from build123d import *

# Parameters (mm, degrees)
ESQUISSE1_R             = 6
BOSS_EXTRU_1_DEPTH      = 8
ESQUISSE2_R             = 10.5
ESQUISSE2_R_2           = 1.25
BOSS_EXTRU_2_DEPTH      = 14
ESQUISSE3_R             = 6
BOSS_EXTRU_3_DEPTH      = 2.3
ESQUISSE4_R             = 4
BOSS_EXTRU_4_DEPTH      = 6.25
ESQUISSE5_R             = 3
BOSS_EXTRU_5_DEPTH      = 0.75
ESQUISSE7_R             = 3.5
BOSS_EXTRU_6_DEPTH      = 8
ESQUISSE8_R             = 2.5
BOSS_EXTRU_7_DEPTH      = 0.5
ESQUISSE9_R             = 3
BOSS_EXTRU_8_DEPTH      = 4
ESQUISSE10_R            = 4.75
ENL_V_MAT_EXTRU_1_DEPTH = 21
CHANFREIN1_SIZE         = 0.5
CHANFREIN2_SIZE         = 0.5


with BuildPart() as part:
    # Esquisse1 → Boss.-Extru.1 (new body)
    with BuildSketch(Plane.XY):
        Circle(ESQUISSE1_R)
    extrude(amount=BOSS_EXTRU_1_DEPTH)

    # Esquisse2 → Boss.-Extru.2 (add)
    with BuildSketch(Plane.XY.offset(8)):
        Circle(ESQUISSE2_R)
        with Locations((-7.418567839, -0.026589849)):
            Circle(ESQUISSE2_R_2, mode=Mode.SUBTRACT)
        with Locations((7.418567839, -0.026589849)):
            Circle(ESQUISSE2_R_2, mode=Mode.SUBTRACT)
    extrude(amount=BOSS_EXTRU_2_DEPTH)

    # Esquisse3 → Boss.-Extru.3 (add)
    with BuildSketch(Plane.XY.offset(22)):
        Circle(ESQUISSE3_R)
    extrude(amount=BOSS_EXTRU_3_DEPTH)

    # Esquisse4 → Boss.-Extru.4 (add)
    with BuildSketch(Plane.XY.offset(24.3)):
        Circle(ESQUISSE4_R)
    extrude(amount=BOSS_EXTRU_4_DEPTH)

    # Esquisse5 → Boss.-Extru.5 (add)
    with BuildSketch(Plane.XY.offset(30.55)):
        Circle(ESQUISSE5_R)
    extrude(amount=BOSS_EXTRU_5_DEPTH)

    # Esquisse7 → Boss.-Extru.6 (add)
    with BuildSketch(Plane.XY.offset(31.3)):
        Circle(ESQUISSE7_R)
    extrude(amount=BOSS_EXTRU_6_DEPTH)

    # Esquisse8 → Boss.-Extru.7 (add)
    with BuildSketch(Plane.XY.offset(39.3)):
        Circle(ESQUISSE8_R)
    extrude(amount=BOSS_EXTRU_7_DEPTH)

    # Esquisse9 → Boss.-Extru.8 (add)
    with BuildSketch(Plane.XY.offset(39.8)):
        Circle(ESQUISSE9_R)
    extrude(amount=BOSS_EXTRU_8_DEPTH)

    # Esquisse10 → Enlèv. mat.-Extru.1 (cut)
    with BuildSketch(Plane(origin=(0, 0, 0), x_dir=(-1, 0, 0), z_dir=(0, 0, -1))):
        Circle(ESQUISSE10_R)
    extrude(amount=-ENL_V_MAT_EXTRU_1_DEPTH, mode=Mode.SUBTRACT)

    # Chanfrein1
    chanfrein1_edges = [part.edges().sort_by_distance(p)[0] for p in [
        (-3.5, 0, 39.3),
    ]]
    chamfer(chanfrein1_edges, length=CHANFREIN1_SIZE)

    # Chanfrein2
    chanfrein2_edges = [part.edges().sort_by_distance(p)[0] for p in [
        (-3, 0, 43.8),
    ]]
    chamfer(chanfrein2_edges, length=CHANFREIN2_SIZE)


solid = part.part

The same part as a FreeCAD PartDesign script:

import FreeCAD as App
import Part
import Sketcher

V = App.Vector
Q = App.Units.Quantity


def edges_at(feature, points):
    """Names of the edges that pass closest to the given points."""
    edges = feature.Shape.Edges
    near = lambda p: min(range(len(edges)), key=lambda i: edges[i].distToShape(Part.Vertex(*p))[0])
    return sorted({f"Edge{near(p) + 1}" for p in points})

doc = App.newDocument("Part")
body = doc.addObject("PartDesign::Body", "Body")

# Sketch on XY plane
sketch1 = doc.addObject("Sketcher::SketchObject", "Sketch")
body.addObject(sketch1)
sketch1.AttachmentSupport = (doc.XY_Plane, [""])
sketch1.MapMode = "FlatFace"
sketch1.addGeometry(Part.Circle(V(0, 0, 0), V(0, 0, 1), 6), False)
sketch1.addConstraint(Sketcher.Constraint("Coincident", 0, 3, -1, 1))
sketch1.addConstraint(Sketcher.Constraint("Diameter", 0, Q("12 mm")))
pad1 = doc.addObject("PartDesign::Pad", "Pad")
body.addObject(pad1)
pad1.Profile = sketch1
pad1.Length = 8

# Sketch on XY plane
sketch2 = doc.addObject("Sketcher::SketchObject", "Sketch001")
body.addObject(sketch2)
sketch2.AttachmentSupport = (doc.XY_Plane, [""])
sketch2.MapMode = "FlatFace"
sketch2.AttachmentOffset = App.Placement(V(0, 0, 8), App.Rotation())
sketch2.addGeometry(Part.Circle(V(0, 0, 0), V(0, 0, 1), 10.5), False)
sketch2.addGeometry(Part.Circle(V(-7.418568, -0.02659, 0), V(0, 0, 1), 1.25), False)
sketch2.addGeometry(Part.Circle(V(7.418568, -0.02659, 0), V(0, 0, 1), 1.25), False)
sketch2.addConstraint(Sketcher.Constraint("Coincident", 0, 3, -1, 1))
sketch2.addConstraint(Sketcher.Constraint("Equal", 1, 2))
sketch2.addConstraint(Sketcher.Constraint("Symmetric", 1, 3, 2, 3, -2))
sketch2.addConstraint(Sketcher.Constraint("Diameter", 0, Q("21 mm")))
sketch2.addConstraint(Sketcher.Constraint("Diameter", 1, Q("2.5 mm")))
sketch2.addConstraint(Sketcher.Constraint("DistanceY", 1, 3, -1, 1, Q("0.02659 mm")))
sketch2.addConstraint(Sketcher.Constraint("DistanceX", 1, 3, -1, 1, Q("7.418568 mm")))
pad2 = doc.addObject("PartDesign::Pad", "Pad001")
body.addObject(pad2)
pad2.Profile = sketch2
pad2.Length = 14

# Sketch on XY plane
sketch3 = doc.addObject("Sketcher::SketchObject", "Sketch002")
body.addObject(sketch3)
sketch3.AttachmentSupport = (doc.XY_Plane, [""])
sketch3.MapMode = "FlatFace"
sketch3.AttachmentOffset = App.Placement(V(0, 0, 22), App.Rotation())
sketch3.addGeometry(Part.Circle(V(0, 0, 0), V(0, 0, 1), 6), False)
sketch3.addConstraint(Sketcher.Constraint("Coincident", 0, 3, -1, 1))
sketch3.addConstraint(Sketcher.Constraint("Diameter", 0, Q("12 mm")))
pad3 = doc.addObject("PartDesign::Pad", "Pad002")
body.addObject(pad3)
pad3.Profile = sketch3
pad3.Length = 2.3

# Sketch on XY plane
sketch4 = doc.addObject("Sketcher::SketchObject", "Sketch003")
body.addObject(sketch4)
sketch4.AttachmentSupport = (doc.XY_Plane, [""])
sketch4.MapMode = "FlatFace"
sketch4.AttachmentOffset = App.Placement(V(0, 0, 24.3), App.Rotation())
sketch4.addGeometry(Part.Circle(V(0, 0, 0), V(0, 0, 1), 4), False)
sketch4.addConstraint(Sketcher.Constraint("Coincident", 0, 3, -1, 1))
sketch4.addConstraint(Sketcher.Constraint("Diameter", 0, Q("8 mm")))
pad4 = doc.addObject("PartDesign::Pad", "Pad003")
body.addObject(pad4)
pad4.Profile = sketch4
pad4.Length = 6.25

# Sketch on XY plane
sketch5 = doc.addObject("Sketcher::SketchObject", "Sketch004")
body.addObject(sketch5)
sketch5.AttachmentSupport = (doc.XY_Plane, [""])
sketch5.MapMode = "FlatFace"
sketch5.AttachmentOffset = App.Placement(V(0, 0, 30.55), App.Rotation())
sketch5.addGeometry(Part.Circle(V(0, 0, 0), V(0, 0, 1), 3), False)
sketch5.addConstraint(Sketcher.Constraint("Coincident", 0, 3, -1, 1))
sketch5.addConstraint(Sketcher.Constraint("Diameter", 0, Q("6 mm")))
pad5 = doc.addObject("PartDesign::Pad", "Pad004")
body.addObject(pad5)
pad5.Profile = sketch5
pad5.Length = 0.75

# Sketch on XY plane
sketch6 = doc.addObject("Sketcher::SketchObject", "Sketch005")
body.addObject(sketch6)
sketch6.AttachmentSupport = (doc.XY_Plane, [""])
sketch6.MapMode = "FlatFace"
sketch6.AttachmentOffset = App.Placement(V(0, 0, 31.3), App.Rotation())
sketch6.addGeometry(Part.Circle(V(0, 0, 0), V(0, 0, 1), 3.5), False)
sketch6.addConstraint(Sketcher.Constraint("Coincident", 0, 3, -1, 1))
sketch6.addConstraint(Sketcher.Constraint("Diameter", 0, Q("7 mm")))
pad6 = doc.addObject("PartDesign::Pad", "Pad005")
body.addObject(pad6)
pad6.Profile = sketch6
pad6.Length = 8

# Sketch on XY plane
sketch7 = doc.addObject("Sketcher::SketchObject", "Sketch006")
body.addObject(sketch7)
sketch7.AttachmentSupport = (doc.XY_Plane, [""])
sketch7.MapMode = "FlatFace"
sketch7.AttachmentOffset = App.Placement(V(0, 0, 39.3), App.Rotation())
sketch7.addGeometry(Part.Circle(V(0, 0, 0), V(0, 0, 1), 2.5), False)
sketch7.addConstraint(Sketcher.Constraint("Coincident", 0, 3, -1, 1))
sketch7.addConstraint(Sketcher.Constraint("Diameter", 0, Q("5 mm")))
pad7 = doc.addObject("PartDesign::Pad", "Pad006")
body.addObject(pad7)
pad7.Profile = sketch7
pad7.Length = 0.5

# Sketch on XY plane
sketch8 = doc.addObject("Sketcher::SketchObject", "Sketch007")
body.addObject(sketch8)
sketch8.AttachmentSupport = (doc.XY_Plane, [""])
sketch8.MapMode = "FlatFace"
sketch8.AttachmentOffset = App.Placement(V(0, 0, 39.8), App.Rotation())
sketch8.addGeometry(Part.Circle(V(0, 0, 0), V(0, 0, 1), 3), False)
sketch8.addConstraint(Sketcher.Constraint("Coincident", 0, 3, -1, 1))
sketch8.addConstraint(Sketcher.Constraint("Diameter", 0, Q("6 mm")))
pad8 = doc.addObject("PartDesign::Pad", "Pad007")
body.addObject(pad8)
pad8.Profile = sketch8
pad8.Length = 4

# Sketch on XY plane
sketch9 = doc.addObject("Sketcher::SketchObject", "Sketch008")
body.addObject(sketch9)
sketch9.AttachmentSupport = (doc.XY_Plane, [""])
sketch9.MapMode = "FlatFace"
sketch9.addGeometry(Part.Circle(V(0, 0, 0), V(0, 0, 1), 4.75), False)
sketch9.addConstraint(Sketcher.Constraint("Coincident", 0, 3, -1, 1))
sketch9.addConstraint(Sketcher.Constraint("Diameter", 0, Q("9.5 mm")))
pocket1 = doc.addObject("PartDesign::Pocket", "Pocket")
body.addObject(pocket1)
pocket1.Profile = sketch9
pocket1.Length = 21
pocket1.Reversed = True
doc.recompute()

chamfer = doc.addObject("PartDesign::Chamfer", "Chamfer")
body.addObject(chamfer)
chamfer.Base = (pocket1, edges_at(pocket1, [(-3.5, 0, 39.3)]))
chamfer.Size = 0.5
doc.recompute()

chamfer2 = doc.addObject("PartDesign::Chamfer", "Chamfer001")
body.addObject(chamfer2)
chamfer2.Base = (chamfer, edges_at(chamfer, [(-3, 0, 43.8)]))
chamfer2.Size = 0.5

doc.recompute()
